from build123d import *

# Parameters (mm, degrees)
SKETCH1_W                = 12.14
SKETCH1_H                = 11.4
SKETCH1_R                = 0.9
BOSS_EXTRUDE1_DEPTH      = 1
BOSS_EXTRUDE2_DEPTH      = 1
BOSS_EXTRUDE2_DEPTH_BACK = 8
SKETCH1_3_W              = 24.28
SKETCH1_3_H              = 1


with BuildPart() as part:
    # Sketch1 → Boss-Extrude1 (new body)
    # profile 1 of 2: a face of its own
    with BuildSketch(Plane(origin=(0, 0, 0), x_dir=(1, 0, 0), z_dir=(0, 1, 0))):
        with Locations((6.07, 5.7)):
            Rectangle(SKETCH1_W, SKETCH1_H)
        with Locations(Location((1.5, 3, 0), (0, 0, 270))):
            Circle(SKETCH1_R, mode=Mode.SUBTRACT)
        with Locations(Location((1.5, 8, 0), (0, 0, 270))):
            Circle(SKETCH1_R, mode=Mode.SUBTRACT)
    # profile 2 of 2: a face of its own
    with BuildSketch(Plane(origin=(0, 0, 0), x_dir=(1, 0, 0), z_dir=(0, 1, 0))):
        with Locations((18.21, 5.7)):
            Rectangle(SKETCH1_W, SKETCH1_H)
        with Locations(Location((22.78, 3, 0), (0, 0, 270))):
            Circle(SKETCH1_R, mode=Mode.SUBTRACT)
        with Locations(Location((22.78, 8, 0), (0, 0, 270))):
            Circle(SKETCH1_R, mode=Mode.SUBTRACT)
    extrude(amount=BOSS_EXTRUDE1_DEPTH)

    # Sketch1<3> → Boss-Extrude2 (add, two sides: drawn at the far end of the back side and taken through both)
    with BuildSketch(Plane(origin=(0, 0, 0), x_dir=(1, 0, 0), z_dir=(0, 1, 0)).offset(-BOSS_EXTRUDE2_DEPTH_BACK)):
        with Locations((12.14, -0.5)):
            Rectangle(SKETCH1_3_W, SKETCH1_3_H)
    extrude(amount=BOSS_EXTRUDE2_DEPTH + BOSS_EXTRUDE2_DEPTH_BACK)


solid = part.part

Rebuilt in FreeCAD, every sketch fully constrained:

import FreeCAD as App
import Part
import Sketcher
from FreeCAD import Vector


def add_polygon(sketch, points):
    """Adds a closed chain of lines whose ends are joined by coincident constraints."""
    first, n = sketch.GeometryCount, len(points)
    for a, b in zip(points, points[1:] + points[:1]):
        sketch.addGeometry(Part.LineSegment(App.Vector(*a, 0), App.Vector(*b, 0)), False)
    for i in range(n):
        sketch.addConstraint(Sketcher.Constraint("Coincident", first + i, 2, first + (i + 1) % n, 1))

doc = App.newDocument("Part")
body = doc.addObject("PartDesign::Body", "Body")

# Sketch on XZ plane
sketch1 = doc.addObject("Sketcher::SketchObject", "Sketch")
body.addObject(sketch1)
sketch1.AttachmentSupport = (doc.XZ_Plane, [""])
sketch1.MapMode = "FlatFace"
add_polygon(sketch1, [(0, -11.4), (0, 0), (24.3, 0), (24.3, -11.4)])  # lines 0-3
sketch1.addGeometry(Part.Circle(Vector(1.5, -3, 0), Vector(0, 0, 1), 0.9), False)  # 4
sketch1.addGeometry(Part.Circle(Vector(1.5, -8, 0), Vector(0, 0, 1), 0.9), False)  # 5
sketch1.addGeometry(Part.Circle(Vector(22.8, -8, 0), Vector(0, 0, 1), 0.9), False)  # 6
sketch1.addGeometry(Part.Circle(Vector(22.8, -3, 0), Vector(0, 0, 1), 0.9), False)  # 7
sketch1.addConstraint([
    Sketcher.Constraint("Vertical", 0),
    Sketcher.Constraint("Horizontal", 1),
    Sketcher.Constraint("Vertical", 2),
    Sketcher.Constraint("Horizontal", 3),
    Sketcher.Constraint("Coincident", 0, 2, -1, 1),
    Sketcher.Constraint("Equal", 4, 5),
    Sketcher.Constraint("Equal", 5, 6),
    Sketcher.Constraint("Equal", 6, 7),
    Sketcher.Constraint("Horizontal", 5, 3, 6, 3),
    Sketcher.Constraint("Horizontal", 4, 3, 7, 3),
    Sketcher.Constraint("Vertical", 4, 3, 5, 3),
    Sketcher.Constraint("Vertical", 6, 3, 7, 3),
    Sketcher.Constraint("Diameter", 4, 1.8),
    Sketcher.Constraint("DistanceY", 0, 1, 0, 2, 11.4),
    Sketcher.Constraint("DistanceY", 4, 3, -1, 1, 3.0),
    Sketcher.Constraint("DistanceY", 5, 3, -1, 1, 8.0),
    Sketcher.Constraint("DistanceX", 1, 1, 1, 2, 24.28),
    Sketcher.Constraint("DistanceX", -1, 1, 4, 3, 1.5),
    Sketcher.Constraint("DistanceX", 7, 3, 1, 2, 1.5),
])
pad1 = doc.addObject("PartDesign::Pad", "Pad")
body.addObject(pad1)
pad1.Profile = sketch1
pad1.Length = 1
pad1.Reversed = True

# Sketch on XZ plane
sketch2 = doc.addObject("Sketcher::SketchObject", "Sketch001")
body.addObject(sketch2)
sketch2.AttachmentSupport = (doc.XZ_Plane, [""])
sketch2.MapMode = "FlatFace"
add_polygon(sketch2, [(0, 0), (0, 1), (24.3, 1), (24.3, 0)])  # lines 0-3
sketch2.addConstraint([
    Sketcher.Constraint("Vertical", 0),
    Sketcher.Constraint("Horizontal", 1),
    Sketcher.Constraint("Vertical", 2),
    Sketcher.Constraint("Horizontal", 3),
    Sketcher.Constraint("Coincident", 3, 2, -1, 1),
    Sketcher.Constraint("DistanceY", 0, 1, 0, 2, 1.0),
    Sketcher.Constraint("DistanceX", 1, 1, 1, 2, 24.28),
])
pad2 = doc.addObject("PartDesign::Pad", "Pad001")
body.addObject(pad2)
pad2.Profile = sketch2
pad2.Type = "TwoLengths"
pad2.Length = 1
pad2.Length2 = 8
pad2.Reversed = True

doc.recompute()
